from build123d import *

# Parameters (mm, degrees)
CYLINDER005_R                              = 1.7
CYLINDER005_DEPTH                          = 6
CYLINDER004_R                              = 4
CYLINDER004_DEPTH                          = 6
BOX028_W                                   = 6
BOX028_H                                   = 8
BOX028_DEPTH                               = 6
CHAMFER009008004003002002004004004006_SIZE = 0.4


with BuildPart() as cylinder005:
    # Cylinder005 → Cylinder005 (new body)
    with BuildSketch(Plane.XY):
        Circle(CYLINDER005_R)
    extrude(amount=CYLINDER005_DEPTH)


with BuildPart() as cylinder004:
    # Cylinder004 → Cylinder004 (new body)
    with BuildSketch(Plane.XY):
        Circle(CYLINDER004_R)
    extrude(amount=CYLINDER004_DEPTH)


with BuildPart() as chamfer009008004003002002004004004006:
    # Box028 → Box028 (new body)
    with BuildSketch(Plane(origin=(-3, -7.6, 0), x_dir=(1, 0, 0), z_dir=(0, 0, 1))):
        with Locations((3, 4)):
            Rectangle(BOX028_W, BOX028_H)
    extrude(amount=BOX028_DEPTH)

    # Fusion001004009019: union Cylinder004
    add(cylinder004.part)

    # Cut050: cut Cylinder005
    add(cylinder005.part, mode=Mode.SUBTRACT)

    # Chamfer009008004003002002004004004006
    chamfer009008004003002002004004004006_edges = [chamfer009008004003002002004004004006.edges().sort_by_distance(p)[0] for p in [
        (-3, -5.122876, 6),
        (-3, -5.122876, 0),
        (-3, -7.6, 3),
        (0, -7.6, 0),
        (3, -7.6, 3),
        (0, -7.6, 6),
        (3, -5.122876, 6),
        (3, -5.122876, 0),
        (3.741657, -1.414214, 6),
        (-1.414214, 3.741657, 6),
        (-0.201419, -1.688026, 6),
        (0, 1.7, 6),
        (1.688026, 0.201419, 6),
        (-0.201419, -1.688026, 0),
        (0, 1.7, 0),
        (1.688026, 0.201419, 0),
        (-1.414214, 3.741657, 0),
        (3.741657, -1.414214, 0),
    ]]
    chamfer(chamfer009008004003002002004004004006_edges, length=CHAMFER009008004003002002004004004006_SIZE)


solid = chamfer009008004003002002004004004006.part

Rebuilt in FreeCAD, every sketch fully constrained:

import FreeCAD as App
import Part
import Sketcher


def edges_at(feature, points):
    """Names of the edges that pass closest to the given points."""
    edges = feature.Shape.Edges
    near = lambda p: min(range(len(edges)), key=lambda i: edges[i].distToShape(Part.Vertex(*p))[0])
    return sorted({f"Edge{near(p) + 1}" for p in points})


def add_polygon(sketch, points):
    """Adds a closed chain of lines whose ends are joined by coincident constraints."""
    first, n = sketch.GeometryCount, len(points)
    for a, b in zip(points, points[1:] + points[:1]):
        sketch.addGeometry(Part.LineSegment(App.Vector(*a, 0), App.Vector(*b, 0)), False)
    for i in range(n):
        sketch.addConstraint(Sketcher.Constraint("Coincident", first + i, 2, first + (i + 1) % n, 1))

doc = App.newDocument("Part")
body = doc.addObject("PartDesign::Body", "Body")

# Sketch on XY plane
sketch1 = body.newObject("Sketcher::SketchObject", "Sketch")
sketch1.AttachmentSupport = (doc.getObject("XY_Plane"), [""])
sketch1.MapMode = "FlatFace"
sketch1.addGeometry(Part.Circle(App.Vector(0, 0, 0), App.Vector(0, 0, 1), 1.7), False)
sketch1.addConstraint(Sketcher.Constraint("Coincident", 0, 3, -1, 1))
sketch1.addConstraint(Sketcher.Constraint("Diameter", 0, 3.4))
pad1 = body.newObject("PartDesign::Pad", "Pad")
pad1.Profile = sketch1
pad1.Length = 6
body2 = doc.addObject("PartDesign::Body", "Body001")

# Sketch on XY plane
sketch2 = body2.newObject("Sketcher::SketchObject", "Sketch001")
sketch2.AttachmentSupport = (doc.getObject("XY_Plane001"), [""])
sketch2.MapMode = "FlatFace"
sketch2.addGeometry(Part.Circle(App.Vector(0, 0, 0), App.Vector(0, 0, 1), 4), False)
sketch2.addConstraint(Sketcher.Constraint("Coincident", 0, 3, -1, 1))
sketch2.addConstraint(Sketcher.Constraint("Diameter", 0, 8.0))
pad2 = body2.newObject("PartDesign::Pad", "Pad001")
pad2.Profile = sketch2
pad2.Length = 6
body3 = doc.addObject("PartDesign::Body", "Body002")

# Sketch on XY plane
sketch3 = body3.newObject("Sketcher::SketchObject", "Sketch002")
sketch3.AttachmentSupport = (doc.getObject("XY_Plane002"), [""])
sketch3.MapMode = "FlatFace"
add_polygon(sketch3, [(-3, 0), (-3, -8), (3, -8), (3, 0)])  # lines 0-3
sketch3.addConstraint(Sketcher.Constraint("Vertical", 0))
sketch3.addConstraint(Sketcher.Constraint("Horizontal", 1))
sketch3.addConstraint(Sketcher.Constraint("Vertical", 2))
sketch3.addConstraint(Sketcher.Constraint("Horizontal", 3))
sketch3.addConstraint(Sketcher.Constraint("DistanceX", 1, 1, 1, 2, 6.0))
sketch3.addConstraint(Sketcher.Constraint("DistanceY", 0, 2, 0, 1, 8.0))
sketch3.addConstraint(Sketcher.Constraint("DistanceX", 0, 2, -1, 1, 3.0))
sketch3.addConstraint(Sketcher.Constraint("DistanceY", 0, 2, -1, 1, 7.6))
pad3 = body3.newObject("PartDesign::Pad", "Pad002")
pad3.Profile = sketch3
pad3.Length = 6
doc.recompute()

boolean = body3.newObject("PartDesign::Boolean", "Boolean")
boolean.Type = "Fuse"
boolean.addObjects([body2])
doc.recompute()

boolean2 = body3.newObject("PartDesign::Boolean", "Boolean001")
boolean2.Type = "Cut"
boolean2.addObjects([body])
doc.recompute()

chamfer = body3.newObject("PartDesign::Chamfer", "Chamfer")
chamfer.Base = (boolean2, edges_at(boolean2, [
    (-3, -5.123, 6),
    (-3, -5.123, 0),
    (-3, -7.6, 3),
    (0, -7.6, 0),
    (3, -7.6, 3),
    (0, -7.6, 6),
    (3, -5.123, 6),
    (3, -5.123, 0),
    (0, 4, 6),
    (0, 4, 6),
    (-1.7, 0, 6),
    (-1.7, 0, 6),
    (-1.7, 0, 6),
    (-1.7, 0, 0),
    (-1.7, 0, 0),
    (-1.7, 0, 0),
    (0, 4, 0),
    (0, 4, 0),
]))
chamfer.Size = 0.4

doc.recompute()
